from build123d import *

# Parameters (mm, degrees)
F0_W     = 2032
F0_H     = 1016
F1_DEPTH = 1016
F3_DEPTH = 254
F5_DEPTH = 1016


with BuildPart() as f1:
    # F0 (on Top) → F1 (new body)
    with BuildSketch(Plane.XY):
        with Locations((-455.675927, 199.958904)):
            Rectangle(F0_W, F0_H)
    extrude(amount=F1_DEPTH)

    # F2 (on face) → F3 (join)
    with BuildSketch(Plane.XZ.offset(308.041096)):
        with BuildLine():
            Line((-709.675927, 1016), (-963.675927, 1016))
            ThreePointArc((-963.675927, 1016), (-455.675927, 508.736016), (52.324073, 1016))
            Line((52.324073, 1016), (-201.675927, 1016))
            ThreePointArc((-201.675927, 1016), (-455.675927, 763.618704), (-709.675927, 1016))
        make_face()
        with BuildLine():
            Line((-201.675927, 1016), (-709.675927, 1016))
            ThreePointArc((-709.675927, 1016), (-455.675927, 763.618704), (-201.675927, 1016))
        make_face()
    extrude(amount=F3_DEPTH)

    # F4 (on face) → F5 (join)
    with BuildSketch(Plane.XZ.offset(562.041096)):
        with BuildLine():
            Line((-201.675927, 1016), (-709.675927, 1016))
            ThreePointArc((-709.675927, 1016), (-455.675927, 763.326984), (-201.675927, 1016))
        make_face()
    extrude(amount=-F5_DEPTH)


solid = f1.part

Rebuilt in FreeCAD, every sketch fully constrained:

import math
import FreeCAD as App
import Part
import Sketcher
from FreeCAD import Vector
Q = App.Units.Quantity


def add_polygon(sketch, points):
    """Adds a closed chain of lines whose ends are joined by coincident constraints."""
    first, n = sketch.GeometryCount, len(points)
    for a, b in zip(points, points[1:] + points[:1]):
        sketch.addGeometry(Part.LineSegment(App.Vector(*a, 0), App.Vector(*b, 0)), False)
    for i in range(n):
        sketch.addConstraint(Sketcher.Constraint("Coincident", first + i, 2, first + (i + 1) % n, 1))

doc = App.newDocument("Part")
body = doc.addObject("PartDesign::Body", "Body")

# Sketch on XY plane
sketch1 = body.newObject("Sketcher::SketchObject", "Sketch")
sketch1.AttachmentSupport = (doc.getObject("XY_Plane"), [""])
sketch1.MapMode = "FlatFace"
add_polygon(sketch1, [(-1471.675927, 707.958904), (-1471.675927, -308.041096), (560.324073, -308.041096), (560.324073, 707.958904)])  # lines 0-3
sketch1.addConstraint(Sketcher.Constraint("Vertical", 0))
sketch1.addConstraint(Sketcher.Constraint("Horizontal", 1))
sketch1.addConstraint(Sketcher.Constraint("Vertical", 2))
sketch1.addConstraint(Sketcher.Constraint("Horizontal", 3))
sketch1.addConstraint(Sketcher.Constraint("DistanceX", 1, 1, 1, 2, Q("80 in")))
sketch1.addConstraint(Sketcher.Constraint("DistanceY", 0, 2, 0, 1, Q("40 in")))
sketch1.addConstraint(Sketcher.Constraint("DistanceX", 0, 2, -1, 1, 1471.675927))
sketch1.addConstraint(Sketcher.Constraint("DistanceY", 0, 2, -1, 1, 308.041096))
pad1 = body.newObject("PartDesign::Pad", "Pad")
pad1.Profile = sketch1
pad1.Length = Q("40 in")

# Sketch on XZ plane
sketch2 = body.newObject("Sketcher::SketchObject", "Sketch001")
sketch2.AttachmentSupport = (doc.getObject("XZ_Plane"), [""])
sketch2.MapMode = "FlatFace"
sketch2.AttachmentOffset = App.Placement(Vector(0, 0, 308.041096), App.Rotation())
sketch2.addGeometry(Part.ArcOfCircle(Part.Circle(Vector(-455.675927, 1016.73655, 0), Vector(0, 0, 1), 508.000534), math.radians(-179.916927), math.radians(-0.083073)), False)
sketch2.addGeometry(Part.LineSegment(Vector(52.324073, 1016, 0), Vector(-963.675927, 1016, 0)), False)
sketch2.addConstraint(Sketcher.Constraint("Coincident", 0, 1, 1, 2))
sketch2.addConstraint(Sketcher.Constraint("Coincident", 1, 1, 0, 2))
sketch2.addConstraint(Sketcher.Constraint("Horizontal", 1))
sketch2.addConstraint(Sketcher.Constraint("DistanceX", 1, 2, 1, 1, Q("40 in")))
sketch2.addConstraint(Sketcher.Constraint("DistanceY", -1, 1, 1, 1, Q("40 in")))
sketch2.addConstraint(Sketcher.Constraint("DistanceY", -1, 1, 0, 3, 1016.73655))
sketch2.addConstraint(Sketcher.Constraint("DistanceX", 0, 3, -1, 1, 455.675927))
pad2 = body.newObject("PartDesign::Pad", "Pad001")
pad2.Profile = sketch2
pad2.Length = Q("10 in")

# Sketch on XZ plane
sketch3 = body.newObject("Sketcher::SketchObject", "Sketch002")
sketch3.AttachmentSupport = (doc.getObject("XZ_Plane"), [""])
sketch3.MapMode = "FlatFace"
sketch3.AttachmentOffset = App.Placement(Vector(0, 0, 562.041096), App.Rotation())
sketch3.addGeometry(Part.LineSegment(Vector(-201.675927, 1016, 0), Vector(-709.675927, 1016, 0)), False)
sketch3.addGeometry(Part.ArcOfCircle(Part.Circle(Vector(-455.675927, 1017.330469, 0), Vector(0, 0, 1), 254.003485), math.radians(-179.699884), math.radians(-0.300116)), False)
sketch3.addConstraint(Sketcher.Constraint("Coincident", 0, 1, 1, 2))
sketch3.addConstraint(Sketcher.Constraint("Coincident", 1, 1, 0, 2))
sketch3.addConstraint(Sketcher.Constraint("Horizontal", 0))
sketch3.addConstraint(Sketcher.Constraint("DistanceX", 0, 2, 0, 1, Q("20 in")))
sketch3.addConstraint(Sketcher.Constraint("DistanceY", -1, 1, 0, 1, Q("40 in")))
sketch3.addConstraint(Sketcher.Constraint("Radius", 1, 254.003485))
sketch3.addConstraint(Sketcher.Constraint("DistanceX", 1, 3, -1, 1, 455.675927))
pad3 = body.newObject("PartDesign::Pad", "Pad002")
pad3.Profile = sketch3
pad3.Length = Q("40 in")
pad3.Reversed = True

doc.recompute()
